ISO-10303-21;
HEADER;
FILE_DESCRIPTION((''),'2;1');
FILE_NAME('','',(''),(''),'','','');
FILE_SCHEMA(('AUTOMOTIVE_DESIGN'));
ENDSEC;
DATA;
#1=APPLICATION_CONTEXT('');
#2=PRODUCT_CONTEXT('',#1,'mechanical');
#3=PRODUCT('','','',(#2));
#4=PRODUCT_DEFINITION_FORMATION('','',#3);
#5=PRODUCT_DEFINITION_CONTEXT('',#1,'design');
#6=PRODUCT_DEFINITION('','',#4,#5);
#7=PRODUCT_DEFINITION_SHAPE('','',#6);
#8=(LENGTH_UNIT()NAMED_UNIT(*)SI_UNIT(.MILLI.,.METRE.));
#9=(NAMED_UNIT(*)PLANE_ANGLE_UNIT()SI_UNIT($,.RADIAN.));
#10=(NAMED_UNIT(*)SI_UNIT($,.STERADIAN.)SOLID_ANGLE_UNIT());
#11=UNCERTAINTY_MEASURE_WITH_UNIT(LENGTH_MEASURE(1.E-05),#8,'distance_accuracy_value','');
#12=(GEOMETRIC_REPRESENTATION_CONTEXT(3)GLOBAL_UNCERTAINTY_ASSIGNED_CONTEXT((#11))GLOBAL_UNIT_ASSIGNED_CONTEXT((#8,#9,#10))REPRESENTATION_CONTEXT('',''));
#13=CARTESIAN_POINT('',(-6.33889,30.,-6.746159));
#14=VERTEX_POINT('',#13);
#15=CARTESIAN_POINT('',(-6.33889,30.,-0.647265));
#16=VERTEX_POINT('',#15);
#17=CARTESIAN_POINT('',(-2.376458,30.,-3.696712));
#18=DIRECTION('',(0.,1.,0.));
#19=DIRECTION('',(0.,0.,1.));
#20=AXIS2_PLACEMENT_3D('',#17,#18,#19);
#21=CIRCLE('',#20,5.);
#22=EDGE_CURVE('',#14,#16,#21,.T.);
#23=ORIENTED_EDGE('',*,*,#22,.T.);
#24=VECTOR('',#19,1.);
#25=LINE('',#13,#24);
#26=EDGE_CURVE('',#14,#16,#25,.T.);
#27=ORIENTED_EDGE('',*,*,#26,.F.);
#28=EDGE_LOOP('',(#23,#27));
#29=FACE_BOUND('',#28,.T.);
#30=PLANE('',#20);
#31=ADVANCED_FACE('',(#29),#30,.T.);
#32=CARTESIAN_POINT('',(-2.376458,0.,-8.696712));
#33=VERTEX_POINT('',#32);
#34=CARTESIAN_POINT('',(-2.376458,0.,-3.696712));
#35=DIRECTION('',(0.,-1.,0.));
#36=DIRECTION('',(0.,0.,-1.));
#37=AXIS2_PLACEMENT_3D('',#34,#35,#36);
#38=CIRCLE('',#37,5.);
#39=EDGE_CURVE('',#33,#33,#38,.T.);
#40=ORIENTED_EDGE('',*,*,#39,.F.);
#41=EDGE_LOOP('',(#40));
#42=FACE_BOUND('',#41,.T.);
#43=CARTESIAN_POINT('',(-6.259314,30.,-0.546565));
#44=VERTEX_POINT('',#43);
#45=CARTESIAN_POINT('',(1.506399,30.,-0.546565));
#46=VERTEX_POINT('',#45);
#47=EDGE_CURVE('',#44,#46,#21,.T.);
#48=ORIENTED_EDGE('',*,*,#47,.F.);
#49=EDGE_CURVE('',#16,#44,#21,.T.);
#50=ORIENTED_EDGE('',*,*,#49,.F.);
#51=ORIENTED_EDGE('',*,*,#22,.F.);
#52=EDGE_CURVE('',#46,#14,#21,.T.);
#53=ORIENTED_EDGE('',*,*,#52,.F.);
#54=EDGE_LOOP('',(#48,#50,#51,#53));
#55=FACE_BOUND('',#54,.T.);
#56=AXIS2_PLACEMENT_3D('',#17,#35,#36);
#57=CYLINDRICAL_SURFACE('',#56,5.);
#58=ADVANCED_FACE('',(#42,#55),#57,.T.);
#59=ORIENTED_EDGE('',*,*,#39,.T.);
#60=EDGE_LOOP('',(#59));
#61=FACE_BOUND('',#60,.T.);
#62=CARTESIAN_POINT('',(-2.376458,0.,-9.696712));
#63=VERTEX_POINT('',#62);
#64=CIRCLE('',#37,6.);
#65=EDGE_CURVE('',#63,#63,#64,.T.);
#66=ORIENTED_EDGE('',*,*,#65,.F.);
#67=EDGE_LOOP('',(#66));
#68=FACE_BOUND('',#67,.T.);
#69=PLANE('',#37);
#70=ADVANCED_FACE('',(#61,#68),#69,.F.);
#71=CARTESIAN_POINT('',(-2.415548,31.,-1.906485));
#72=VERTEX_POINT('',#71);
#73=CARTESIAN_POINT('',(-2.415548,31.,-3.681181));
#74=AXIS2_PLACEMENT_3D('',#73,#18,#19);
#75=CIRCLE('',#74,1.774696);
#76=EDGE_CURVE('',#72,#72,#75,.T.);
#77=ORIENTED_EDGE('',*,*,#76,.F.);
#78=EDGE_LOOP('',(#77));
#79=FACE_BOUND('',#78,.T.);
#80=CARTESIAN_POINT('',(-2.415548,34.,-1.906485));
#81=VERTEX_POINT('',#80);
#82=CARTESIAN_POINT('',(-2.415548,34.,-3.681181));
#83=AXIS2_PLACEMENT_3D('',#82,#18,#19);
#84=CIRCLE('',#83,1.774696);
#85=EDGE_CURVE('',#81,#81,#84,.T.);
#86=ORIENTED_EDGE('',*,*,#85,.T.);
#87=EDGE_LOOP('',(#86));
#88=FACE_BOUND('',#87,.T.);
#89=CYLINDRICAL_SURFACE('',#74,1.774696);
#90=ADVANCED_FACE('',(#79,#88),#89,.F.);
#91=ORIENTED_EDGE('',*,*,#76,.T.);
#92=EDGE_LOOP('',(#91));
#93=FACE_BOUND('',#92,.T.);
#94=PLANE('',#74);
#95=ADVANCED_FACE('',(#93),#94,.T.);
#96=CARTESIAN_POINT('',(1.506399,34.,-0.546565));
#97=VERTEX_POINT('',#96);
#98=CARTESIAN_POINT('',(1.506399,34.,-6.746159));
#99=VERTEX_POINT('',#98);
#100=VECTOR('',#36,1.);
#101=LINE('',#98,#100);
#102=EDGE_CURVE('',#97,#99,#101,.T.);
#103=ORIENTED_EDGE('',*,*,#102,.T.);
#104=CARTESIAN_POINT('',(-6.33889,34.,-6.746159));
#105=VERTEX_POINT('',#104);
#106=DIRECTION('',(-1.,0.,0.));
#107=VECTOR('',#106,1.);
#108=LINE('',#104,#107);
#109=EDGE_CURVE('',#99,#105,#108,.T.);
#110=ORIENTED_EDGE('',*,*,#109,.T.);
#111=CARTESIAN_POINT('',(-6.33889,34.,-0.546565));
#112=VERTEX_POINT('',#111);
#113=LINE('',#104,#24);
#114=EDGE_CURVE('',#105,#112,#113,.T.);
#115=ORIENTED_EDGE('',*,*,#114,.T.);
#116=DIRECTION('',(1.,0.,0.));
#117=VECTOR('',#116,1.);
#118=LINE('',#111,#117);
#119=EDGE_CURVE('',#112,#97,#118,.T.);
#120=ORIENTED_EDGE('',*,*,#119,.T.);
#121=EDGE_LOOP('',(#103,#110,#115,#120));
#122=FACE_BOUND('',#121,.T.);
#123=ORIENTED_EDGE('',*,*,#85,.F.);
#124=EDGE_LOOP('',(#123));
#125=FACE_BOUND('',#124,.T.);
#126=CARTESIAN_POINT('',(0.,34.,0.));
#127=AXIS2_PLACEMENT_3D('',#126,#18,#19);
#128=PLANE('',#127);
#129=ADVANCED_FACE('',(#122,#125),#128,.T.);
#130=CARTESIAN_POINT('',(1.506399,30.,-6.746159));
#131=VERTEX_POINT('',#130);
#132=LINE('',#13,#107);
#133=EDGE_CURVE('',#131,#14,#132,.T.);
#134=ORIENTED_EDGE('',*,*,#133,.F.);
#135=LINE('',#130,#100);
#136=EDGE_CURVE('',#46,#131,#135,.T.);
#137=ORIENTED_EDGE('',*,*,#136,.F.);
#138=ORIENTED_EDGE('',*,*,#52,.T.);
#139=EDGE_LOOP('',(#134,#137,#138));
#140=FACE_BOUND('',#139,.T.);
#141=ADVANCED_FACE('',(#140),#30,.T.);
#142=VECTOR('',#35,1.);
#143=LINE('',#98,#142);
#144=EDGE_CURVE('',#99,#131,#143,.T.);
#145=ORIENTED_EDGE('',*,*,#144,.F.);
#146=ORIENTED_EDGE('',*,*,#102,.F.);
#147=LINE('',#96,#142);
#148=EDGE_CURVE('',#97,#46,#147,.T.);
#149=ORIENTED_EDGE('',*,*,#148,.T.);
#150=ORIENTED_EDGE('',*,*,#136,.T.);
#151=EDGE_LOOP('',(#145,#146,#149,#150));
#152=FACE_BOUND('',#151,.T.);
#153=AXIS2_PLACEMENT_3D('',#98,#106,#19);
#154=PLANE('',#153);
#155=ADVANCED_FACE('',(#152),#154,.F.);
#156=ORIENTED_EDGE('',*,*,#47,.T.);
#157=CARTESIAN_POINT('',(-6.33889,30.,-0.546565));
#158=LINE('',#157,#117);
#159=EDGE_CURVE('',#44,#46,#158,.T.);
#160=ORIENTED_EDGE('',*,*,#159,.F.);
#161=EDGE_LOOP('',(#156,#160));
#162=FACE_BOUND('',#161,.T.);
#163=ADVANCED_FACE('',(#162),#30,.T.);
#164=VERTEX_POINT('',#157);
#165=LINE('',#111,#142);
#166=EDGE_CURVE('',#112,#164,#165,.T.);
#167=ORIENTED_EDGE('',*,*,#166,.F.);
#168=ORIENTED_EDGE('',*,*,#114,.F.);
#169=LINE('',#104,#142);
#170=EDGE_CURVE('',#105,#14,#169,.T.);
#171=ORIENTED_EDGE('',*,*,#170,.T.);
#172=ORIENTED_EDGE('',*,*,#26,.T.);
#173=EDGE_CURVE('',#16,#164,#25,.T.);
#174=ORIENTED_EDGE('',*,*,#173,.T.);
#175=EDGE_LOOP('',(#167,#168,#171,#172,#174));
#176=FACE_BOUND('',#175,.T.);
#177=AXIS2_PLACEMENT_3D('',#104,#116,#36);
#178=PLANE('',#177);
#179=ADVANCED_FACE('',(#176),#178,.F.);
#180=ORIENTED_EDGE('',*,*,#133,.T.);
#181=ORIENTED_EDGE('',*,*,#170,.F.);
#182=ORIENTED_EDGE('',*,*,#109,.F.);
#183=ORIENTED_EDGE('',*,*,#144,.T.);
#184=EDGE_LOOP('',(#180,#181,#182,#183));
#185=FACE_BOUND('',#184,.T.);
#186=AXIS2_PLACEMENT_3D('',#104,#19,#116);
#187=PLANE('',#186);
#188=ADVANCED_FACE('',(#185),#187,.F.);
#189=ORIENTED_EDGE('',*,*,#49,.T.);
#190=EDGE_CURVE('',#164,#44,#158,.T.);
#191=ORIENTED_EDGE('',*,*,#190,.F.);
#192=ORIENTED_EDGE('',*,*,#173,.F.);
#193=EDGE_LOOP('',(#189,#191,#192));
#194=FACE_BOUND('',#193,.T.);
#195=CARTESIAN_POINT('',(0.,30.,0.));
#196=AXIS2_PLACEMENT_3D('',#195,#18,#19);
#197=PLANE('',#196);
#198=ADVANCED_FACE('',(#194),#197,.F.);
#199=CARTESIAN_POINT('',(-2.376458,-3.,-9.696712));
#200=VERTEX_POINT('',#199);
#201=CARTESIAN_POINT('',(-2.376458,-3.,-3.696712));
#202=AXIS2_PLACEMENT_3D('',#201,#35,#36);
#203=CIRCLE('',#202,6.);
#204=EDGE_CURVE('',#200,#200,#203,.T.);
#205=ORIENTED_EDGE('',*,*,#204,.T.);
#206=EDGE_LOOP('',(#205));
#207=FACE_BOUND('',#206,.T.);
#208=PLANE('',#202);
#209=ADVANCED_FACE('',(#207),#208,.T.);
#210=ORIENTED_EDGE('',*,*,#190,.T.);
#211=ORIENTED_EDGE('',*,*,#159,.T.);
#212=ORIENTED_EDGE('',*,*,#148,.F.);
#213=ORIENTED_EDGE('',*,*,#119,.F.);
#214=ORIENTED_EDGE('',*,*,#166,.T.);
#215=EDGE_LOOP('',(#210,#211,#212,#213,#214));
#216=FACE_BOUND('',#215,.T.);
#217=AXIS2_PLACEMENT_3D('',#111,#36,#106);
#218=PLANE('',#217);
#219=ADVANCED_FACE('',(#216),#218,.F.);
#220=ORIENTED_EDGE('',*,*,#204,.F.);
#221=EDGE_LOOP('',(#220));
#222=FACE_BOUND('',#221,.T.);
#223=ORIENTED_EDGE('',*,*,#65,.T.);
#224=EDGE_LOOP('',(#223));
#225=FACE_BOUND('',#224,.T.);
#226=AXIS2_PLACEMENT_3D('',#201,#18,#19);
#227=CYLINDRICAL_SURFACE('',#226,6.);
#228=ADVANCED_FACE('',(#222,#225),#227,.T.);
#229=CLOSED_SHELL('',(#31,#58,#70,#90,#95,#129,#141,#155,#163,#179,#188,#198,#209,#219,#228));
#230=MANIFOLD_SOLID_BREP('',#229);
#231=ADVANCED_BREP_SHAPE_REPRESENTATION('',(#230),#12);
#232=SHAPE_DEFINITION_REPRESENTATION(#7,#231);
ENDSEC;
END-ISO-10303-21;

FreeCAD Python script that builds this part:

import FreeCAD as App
import Part
import Sketcher

V = App.Vector

doc = App.newDocument("Part")
body = doc.addObject("PartDesign::Body", "Body")

# Sketch on XZ plane
sketch1 = body.newObject("Sketcher::SketchObject", "Sketch")
sketch1.AttachmentSupport = (doc.getObject("XZ_Plane"), [""])
sketch1.MapMode = "FlatFace"
sketch1.addGeometry(Part.Circle(V(-2, -4, 0), V(0, 0, 1), 5), False)
sketch1.addConstraint(Sketcher.Constraint("Diameter", 0, 10.0))
sketch1.addConstraint(Sketcher.Constraint("DistanceY", 0, 3, -1, 1, 3.696712))
sketch1.addConstraint(Sketcher.Constraint("DistanceX", 0, 3, -1, 1, 2.376458))
pad1 = body.newObject("PartDesign::Pad", "Pad")
pad1.Profile = sketch1
pad1.Length = 30
pad1.Reversed = True

# Sketch on XZ plane
sketch2 = body.newObject("Sketcher::SketchObject", "Sketch001")
sketch2.AttachmentSupport = (doc.getObject("XZ_Plane"), [""])
sketch2.MapMode = "FlatFace"
sketch2.AttachmentOffset = App.Placement(V(0, 0, -30), App.Rotation())
sketch2.addGeometry(Part.LineSegment(V(-6, -7, 0), V(-6, -1, 0)), False)
sketch2.addGeometry(Part.LineSegment(V(-6, -1, 0), V(2, -1, 0)), False)
sketch2.addGeometry(Part.LineSegment(V(2, -1, 0), V(2, -7, 0)), False)
sketch2.addGeometry(Part.LineSegment(V(2, -7, 0), V(-6, -7, 0)), False)
sketch2.addConstraint(Sketcher.Constraint("Coincident", 0, 2, 1, 1))
sketch2.addConstraint(Sketcher.Constraint("Coincident", 1, 2, 2, 1))
sketch2.addConstraint(Sketcher.Constraint("Coincident", 2, 2, 3, 1))
sketch2.addConstraint(Sketcher.Constraint("Coincident", 3, 2, 0, 1))
sketch2.addConstraint(Sketcher.Constraint("Vertical", 0))
sketch2.addConstraint(Sketcher.Constraint("Horizontal", 1))
sketch2.addConstraint(Sketcher.Constraint("Vertical", 2))
sketch2.addConstraint(Sketcher.Constraint("Horizontal", 3))
sketch2.addConstraint(Sketcher.Constraint("DistanceX", 1, 1, 1, 2, 7.845289))
sketch2.addConstraint(Sketcher.Constraint("DistanceX", -1, 1, 1, 2, 1.506399))
sketch2.addConstraint(Sketcher.Constraint("DistanceY", 0, 1, 0, 2, 6.199594))
sketch2.addConstraint(Sketcher.Constraint("DistanceY", 2, 2, -1, 1, 6.746159))
pad2 = body.newObject("PartDesign::Pad", "Pad001")
pad2.Profile = sketch2
pad2.Length = 4
pad2.Reversed = True

# Sketch on XZ plane
sketch3 = body.newObject("Sketcher::SketchObject", "Sketch002")
sketch3.AttachmentSupport = (doc.getObject("XZ_Plane"), [""])
sketch3.MapMode = "FlatFace"
sketch3.AttachmentOffset = App.Placement(V(0, 0, -34), App.Rotation())
sketch3.addGeometry(Part.Circle(V(-2.4, -3.7, 0), V(0, 0, 1), 1.8), False)
sketch3.addConstraint(Sketcher.Constraint("Diameter", 0, 3.549392))
sketch3.addConstraint(Sketcher.Constraint("DistanceY", 0, 3, -1, 1, 3.681181))
sketch3.addConstraint(Sketcher.Constraint("DistanceX", 0, 3, -1, 1, 2.415548))
pocket1 = body.newObject("PartDesign::Pocket", "Pocket")
pocket1.Profile = sketch3
pocket1.Length = 3
pocket1.Reversed = True

# Sketch on XZ plane
sketch4 = body.newObject("Sketcher::SketchObject", "Sketch003")
sketch4.AttachmentSupport = (doc.getObject("XZ_Plane"), [""])
sketch4.MapMode = "FlatFace"
sketch4.addGeometry(Part.Circle(V(-2, -4, 0), V(0, 0, 1), 6), False)
sketch4.addConstraint(Sketcher.Constraint("Diameter", 0, 12.0))
sketch4.addConstraint(Sketcher.Constraint("DistanceY", 0, 3, -1, 1, 3.696712))
sketch4.addConstraint(Sketcher.Constraint("DistanceX", 0, 3, -1, 1, 2.376458))
pad3 = body.newObject("PartDesign::Pad", "Pad002")
pad3.Profile = sketch4
pad3.Length = 3

doc.recompute()
